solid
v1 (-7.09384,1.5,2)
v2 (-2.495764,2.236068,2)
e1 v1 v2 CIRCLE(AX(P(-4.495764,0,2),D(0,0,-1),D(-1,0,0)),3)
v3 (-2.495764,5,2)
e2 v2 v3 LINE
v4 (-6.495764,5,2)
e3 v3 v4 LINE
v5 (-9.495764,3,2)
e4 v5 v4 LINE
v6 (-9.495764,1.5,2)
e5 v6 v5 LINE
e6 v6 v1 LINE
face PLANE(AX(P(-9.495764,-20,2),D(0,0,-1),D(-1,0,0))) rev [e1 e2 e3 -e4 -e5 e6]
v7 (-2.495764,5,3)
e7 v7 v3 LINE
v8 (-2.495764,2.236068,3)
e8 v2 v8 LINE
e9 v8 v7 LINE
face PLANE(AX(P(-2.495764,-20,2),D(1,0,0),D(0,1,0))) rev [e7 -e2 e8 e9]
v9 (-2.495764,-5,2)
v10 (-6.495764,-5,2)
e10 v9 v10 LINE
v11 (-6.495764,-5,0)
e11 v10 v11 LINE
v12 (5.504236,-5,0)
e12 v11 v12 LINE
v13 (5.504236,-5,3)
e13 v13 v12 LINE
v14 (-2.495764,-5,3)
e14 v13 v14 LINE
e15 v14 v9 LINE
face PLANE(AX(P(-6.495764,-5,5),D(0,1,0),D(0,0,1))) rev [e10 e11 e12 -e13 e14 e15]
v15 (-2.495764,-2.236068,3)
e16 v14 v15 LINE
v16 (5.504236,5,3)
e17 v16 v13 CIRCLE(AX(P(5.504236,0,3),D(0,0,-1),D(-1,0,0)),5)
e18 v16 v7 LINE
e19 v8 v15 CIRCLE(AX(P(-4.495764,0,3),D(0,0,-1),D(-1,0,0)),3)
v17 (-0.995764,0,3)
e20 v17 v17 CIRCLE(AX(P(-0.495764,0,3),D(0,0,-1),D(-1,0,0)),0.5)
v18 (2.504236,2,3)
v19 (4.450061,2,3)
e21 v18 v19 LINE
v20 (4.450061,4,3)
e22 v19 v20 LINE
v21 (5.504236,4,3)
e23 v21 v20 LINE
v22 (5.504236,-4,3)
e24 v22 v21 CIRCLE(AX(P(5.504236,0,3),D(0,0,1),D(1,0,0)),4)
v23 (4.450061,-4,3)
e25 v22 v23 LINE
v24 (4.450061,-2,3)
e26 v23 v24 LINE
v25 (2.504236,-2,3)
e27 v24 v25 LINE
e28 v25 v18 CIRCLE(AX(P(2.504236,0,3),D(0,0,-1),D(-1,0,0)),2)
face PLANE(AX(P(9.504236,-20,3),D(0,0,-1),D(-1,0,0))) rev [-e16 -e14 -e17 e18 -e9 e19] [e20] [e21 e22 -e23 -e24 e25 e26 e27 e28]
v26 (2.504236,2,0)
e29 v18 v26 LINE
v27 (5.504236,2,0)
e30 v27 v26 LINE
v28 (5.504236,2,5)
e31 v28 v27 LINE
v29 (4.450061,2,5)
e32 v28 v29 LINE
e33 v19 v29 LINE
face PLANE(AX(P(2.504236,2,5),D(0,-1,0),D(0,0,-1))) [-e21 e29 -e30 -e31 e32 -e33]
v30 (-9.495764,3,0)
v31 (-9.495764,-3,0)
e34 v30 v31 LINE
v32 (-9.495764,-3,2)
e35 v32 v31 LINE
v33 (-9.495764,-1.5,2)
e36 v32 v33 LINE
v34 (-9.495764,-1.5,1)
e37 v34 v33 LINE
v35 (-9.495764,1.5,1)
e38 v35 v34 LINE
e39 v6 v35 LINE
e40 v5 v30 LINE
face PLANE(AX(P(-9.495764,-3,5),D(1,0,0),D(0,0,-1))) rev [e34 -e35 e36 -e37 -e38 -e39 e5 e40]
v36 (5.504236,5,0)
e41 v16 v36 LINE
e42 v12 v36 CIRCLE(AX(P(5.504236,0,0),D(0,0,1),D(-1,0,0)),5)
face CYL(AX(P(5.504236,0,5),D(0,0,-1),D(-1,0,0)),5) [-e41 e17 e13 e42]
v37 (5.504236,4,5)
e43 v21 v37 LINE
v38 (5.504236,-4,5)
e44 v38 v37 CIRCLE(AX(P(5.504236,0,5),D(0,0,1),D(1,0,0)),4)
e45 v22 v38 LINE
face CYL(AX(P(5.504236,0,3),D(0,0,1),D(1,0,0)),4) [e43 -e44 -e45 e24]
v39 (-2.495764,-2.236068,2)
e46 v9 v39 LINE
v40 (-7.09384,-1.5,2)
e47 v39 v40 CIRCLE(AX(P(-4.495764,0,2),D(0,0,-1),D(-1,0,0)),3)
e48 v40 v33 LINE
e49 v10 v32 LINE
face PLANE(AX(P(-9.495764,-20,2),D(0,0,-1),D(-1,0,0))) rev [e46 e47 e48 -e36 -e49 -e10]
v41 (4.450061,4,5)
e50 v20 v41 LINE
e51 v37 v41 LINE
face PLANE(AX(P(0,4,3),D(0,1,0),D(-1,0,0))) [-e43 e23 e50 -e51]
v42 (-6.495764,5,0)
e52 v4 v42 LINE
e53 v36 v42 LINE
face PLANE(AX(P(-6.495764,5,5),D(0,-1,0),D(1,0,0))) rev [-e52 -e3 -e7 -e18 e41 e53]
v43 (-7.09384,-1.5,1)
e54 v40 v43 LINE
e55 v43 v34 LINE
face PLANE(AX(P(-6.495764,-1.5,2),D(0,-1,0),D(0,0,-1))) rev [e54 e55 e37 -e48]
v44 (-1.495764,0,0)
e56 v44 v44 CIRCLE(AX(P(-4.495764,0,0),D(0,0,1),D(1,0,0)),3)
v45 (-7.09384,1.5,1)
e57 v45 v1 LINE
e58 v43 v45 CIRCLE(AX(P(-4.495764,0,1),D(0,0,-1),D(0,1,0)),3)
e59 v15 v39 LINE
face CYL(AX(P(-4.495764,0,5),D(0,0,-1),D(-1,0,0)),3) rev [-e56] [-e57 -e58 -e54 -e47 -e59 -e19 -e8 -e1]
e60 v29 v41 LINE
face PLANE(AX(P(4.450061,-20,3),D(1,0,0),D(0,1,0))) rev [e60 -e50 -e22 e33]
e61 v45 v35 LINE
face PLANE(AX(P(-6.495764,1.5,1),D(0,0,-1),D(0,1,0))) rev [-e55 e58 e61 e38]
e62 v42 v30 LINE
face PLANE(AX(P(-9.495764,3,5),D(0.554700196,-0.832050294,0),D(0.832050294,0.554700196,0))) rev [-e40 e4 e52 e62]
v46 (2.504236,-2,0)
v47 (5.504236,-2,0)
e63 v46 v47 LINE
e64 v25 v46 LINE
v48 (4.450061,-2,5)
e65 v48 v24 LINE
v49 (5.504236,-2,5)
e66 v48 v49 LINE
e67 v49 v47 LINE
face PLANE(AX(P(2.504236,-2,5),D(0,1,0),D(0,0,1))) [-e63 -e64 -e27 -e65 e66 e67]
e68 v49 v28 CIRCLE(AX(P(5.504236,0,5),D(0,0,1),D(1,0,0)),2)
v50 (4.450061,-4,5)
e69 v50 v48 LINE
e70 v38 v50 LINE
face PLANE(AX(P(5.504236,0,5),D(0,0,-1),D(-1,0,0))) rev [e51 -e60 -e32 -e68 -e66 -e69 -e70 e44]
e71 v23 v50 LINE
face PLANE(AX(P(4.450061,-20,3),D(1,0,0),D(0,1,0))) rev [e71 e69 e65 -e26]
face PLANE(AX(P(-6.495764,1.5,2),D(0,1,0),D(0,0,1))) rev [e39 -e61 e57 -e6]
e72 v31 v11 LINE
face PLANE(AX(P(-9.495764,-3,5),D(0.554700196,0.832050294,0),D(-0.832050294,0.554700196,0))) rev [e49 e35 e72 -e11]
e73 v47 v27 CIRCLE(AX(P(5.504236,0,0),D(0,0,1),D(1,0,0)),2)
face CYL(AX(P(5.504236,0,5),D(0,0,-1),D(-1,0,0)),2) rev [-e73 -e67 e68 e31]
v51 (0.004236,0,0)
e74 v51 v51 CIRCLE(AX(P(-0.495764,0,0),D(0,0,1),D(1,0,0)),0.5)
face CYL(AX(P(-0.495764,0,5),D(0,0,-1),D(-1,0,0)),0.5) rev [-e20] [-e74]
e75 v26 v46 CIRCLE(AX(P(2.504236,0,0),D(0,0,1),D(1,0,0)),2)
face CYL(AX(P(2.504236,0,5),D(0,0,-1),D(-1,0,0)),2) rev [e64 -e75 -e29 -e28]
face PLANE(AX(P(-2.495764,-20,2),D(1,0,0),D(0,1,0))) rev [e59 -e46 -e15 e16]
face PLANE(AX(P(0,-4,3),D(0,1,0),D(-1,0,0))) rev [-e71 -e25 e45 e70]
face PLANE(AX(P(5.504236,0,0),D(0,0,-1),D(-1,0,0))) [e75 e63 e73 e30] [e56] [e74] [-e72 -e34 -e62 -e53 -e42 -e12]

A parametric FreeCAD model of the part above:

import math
import FreeCAD as App
import Part
import Sketcher
from FreeCAD import Vector

doc = App.newDocument("Part")
params = doc.addObject("Spreadsheet::Sheet", "Params")
for row, (alias, value) in enumerate([
    ("sketch1_diameter", "1 mm"),
    ("sketch1_diameter2", "6 mm"),
    ("sketch1_radius", "5 mm"),
    ("sketch1_radius2", "2 mm"),
    ("sketch1_width", "12 mm"),
    ("pad1_length", "5 mm"),
    ("sketch2_width", "7 mm"),
    ("sketch2_width2", "20 mm"),
    ("sketch2_width3", "1 mm"),
    ("sketch2_height", "2 mm"),
    ("pocket1_length", "25 mm"),
    ("sketch3_radius", "4 mm"),
    ("sketch3_radius2", "5 mm"),
    ("sketch3_radius3", "2 mm"),
    ("pocket2_length", "2 mm"),
    ("sketch4_width", "3 mm"),
    ("sketch4_height", "1 mm"),
    ("pocket3_length", "3 mm"),
], start=1):
    params.set(f"A{row}", alias)
    params.set(f"B{row}", "=" + value)
    params.setAlias(f"B{row}", alias)

body = doc.addObject("PartDesign::Body", "Body")

# Sketch on XY plane
sketch1 = body.newObject("Sketcher::SketchObject", "Sketch")
sketch1.AttachmentSupport = (doc.getObject("XY_Plane"), [""])
sketch1.MapMode = "FlatFace"
sketch1.addGeometry([
    Part.LineSegment(Vector(-6.5, 5, 0), Vector(-9.5, 3, 0)),  # 0
    Part.LineSegment(Vector(-9.5, 3, 0), Vector(-9.5, -3, 0)),  # 1
    Part.LineSegment(Vector(-9.5, -3, 0), Vector(-6.5, -5, 0)),  # 2
    Part.LineSegment(Vector(-6.5, -5, 0), Vector(5.5, -5, 0)),  # 3
    Part.ArcOfCircle(Part.Circle(Vector(5.5, 0, 0), Vector(0, 0, 1), 5), math.radians(-90), math.radians(0)),  # 4
    Part.ArcOfCircle(Part.Circle(Vector(5.5, 0, 0), Vector(0, 0, 1), 5), math.radians(0), math.radians(90)),  # 5
    Part.LineSegment(Vector(5.5, 5, 0), Vector(-6.5, 5, 0)),  # 6
    Part.LineSegment(Vector(2.5, 2, 0), Vector(5.5, 2, 0)),  # 7
    Part.ArcOfCircle(Part.Circle(Vector(5.5, 0, 0), Vector(0, 0, 1), 2), math.radians(-90), math.radians(90)),  # 8
    Part.LineSegment(Vector(5.5, -2, 0), Vector(2.5, -2, 0)),  # 9
    Part.ArcOfCircle(Part.Circle(Vector(2.5, 0, 0), Vector(0, 0, 1), 2), math.radians(90), math.radians(270)),  # 10
    Part.Circle(Vector(-0.5, 0, 0), Vector(0, 0, 1), 0.5),  # 11
    Part.Circle(Vector(-4.5, 0, 0), Vector(0, 0, 1), 3),  # 12
], False)
sketch1.addConstraint([
    Sketcher.Constraint("Coincident", 0, 2, 1, 1),
    Sketcher.Constraint("Coincident", 1, 2, 2, 1),
    Sketcher.Constraint("Coincident", 2, 2, 3, 1),
    Sketcher.Constraint("Tangent", 3, 2, 4, 1),
    Sketcher.Constraint("Tangent", 4, 2, 5, 1),
    Sketcher.Constraint("Tangent", 5, 2, 6, 1),
    Sketcher.Constraint("Coincident", 6, 2, 0, 1),
    Sketcher.Constraint("Tangent", 7, 2, 8, 2),
    Sketcher.Constraint("Tangent", 8, 1, 9, 1),
    Sketcher.Constraint("Tangent", 9, 2, 10, 2),
    Sketcher.Constraint("Tangent", 10, 1, 7, 1),
    Sketcher.Constraint("Vertical", 1),
    Sketcher.Constraint("Horizontal", 3),
    Sketcher.Constraint("Horizontal", 6),
    Sketcher.Constraint("Horizontal", 7),
    Sketcher.Constraint("Horizontal", 9),
    Sketcher.Constraint("Coincident", 8, 3, 4, 3),
    Sketcher.Constraint("Equal", 4, 5),
    Sketcher.Constraint("Symmetric", 2, 2, 6, 2, -1),
    Sketcher.Constraint("PointOnObject", 11, 3, -1),
    Sketcher.Constraint("PointOnObject", 12, 3, -1),
    Sketcher.Constraint("Equal", 0, 2),
    Sketcher.Constraint("Diameter", 11, 1.0),
    Sketcher.Constraint("Diameter", 12, 6.0),
    Sketcher.Constraint("Radius", 4, 5.0),
    Sketcher.Constraint("Radius", 8, 2.0),
    Sketcher.Constraint("DistanceX", 3, 1, 3, 2, 12.0),
    Sketcher.Constraint("DistanceX", 7, 1, 7, 2, 3.0),
    Sketcher.Constraint("DistanceY", 1, 2, 1, 1, 6.0),
    Sketcher.Constraint("DistanceX", 11, 3, 10, 3, 3.0),
    Sketcher.Constraint("DistanceX", 12, 3, 11, 3, 4.0),
    Sketcher.Constraint("DistanceX", 0, 2, 12, 3, 5.0),
    Sketcher.Constraint("DistanceY", 4, 2, -1, 1, 0.02004),
    Sketcher.Constraint("DistanceX", -1, 1, 4, 3, 5.504236),
])
sketch1.setExpression("Constraints[22]", "Params.sketch1_diameter")
sketch1.setExpression("Constraints[23]", "Params.sketch1_diameter2")
sketch1.setExpression("Constraints[24]", "Params.sketch1_radius")
sketch1.setExpression("Constraints[25]", "Params.sketch1_radius2")
sketch1.setExpression("Constraints[26]", "Params.sketch1_width")
pad1 = body.newObject("PartDesign::Pad", "Pad")
pad1.Profile = sketch1
pad1.setExpression("Length", "Params.pad1_length")

# Sketch on XZ plane
sketch2 = body.newObject("Sketcher::SketchObject", "Sketch001")
sketch2.AttachmentSupport = (doc.getObject("XZ_Plane"), [""])
sketch2.MapMode = "FlatFace"
sketch2.AttachmentOffset = App.Placement(Vector(0, 0, -5), App.Rotation())
sketch2.addGeometry([
    Part.LineSegment(Vector(-2.5, 2, 0), Vector(-9.5, 2, 0)),  # 0
    Part.LineSegment(Vector(-9.5, 2, 0), Vector(-9.5, 6.6, 0)),  # 1
    Part.LineSegment(Vector(-9.5, 6.6, 0), Vector(10.5, 6.6, 0)),  # 2
    Part.LineSegment(Vector(10.5, 6.6, 0), Vector(10.5, 3, 0)),  # 3
    Part.LineSegment(Vector(10.5, 3, 0), Vector(9.5, 3, 0)),  # 4
    Part.LineSegment(Vector(9.5, 3, 0), Vector(9.5, 5, 0)),  # 5
    Part.LineSegment(Vector(9.5, 5, 0), Vector(4.5, 5, 0)),  # 6
    Part.LineSegment(Vector(4.5, 5, 0), Vector(4.5, 3, 0)),  # 7
    Part.LineSegment(Vector(4.5, 3, 0), Vector(-2.5, 3, 0)),  # 8
    Part.LineSegment(Vector(-2.5, 3, 0), Vector(-2.5, 2, 0)),  # 9
], False)
sketch2.addConstraint([
    Sketcher.Constraint("Coincident", 0, 2, 1, 1),
    Sketcher.Constraint("Coincident", 1, 2, 2, 1),
    Sketcher.Constraint("Coincident", 2, 2, 3, 1),
    Sketcher.Constraint("Coincident", 3, 2, 4, 1),
    Sketcher.Constraint("Coincident", 4, 2, 5, 1),
    Sketcher.Constraint("Coincident", 5, 2, 6, 1),
    Sketcher.Constraint("Coincident", 6, 2, 7, 1),
    Sketcher.Constraint("Coincident", 7, 2, 8, 1),
    Sketcher.Constraint("Coincident", 8, 2, 9, 1),
    Sketcher.Constraint("Coincident", 9, 2, 0, 1),
    Sketcher.Constraint("Horizontal", 0),
    Sketcher.Constraint("Vertical", 1),
    Sketcher.Constraint("Horizontal", 2),
    Sketcher.Constraint("Vertical", 3),
    Sketcher.Constraint("Horizontal", 4),
    Sketcher.Constraint("Vertical", 5),
    Sketcher.Constraint("Horizontal", 6),
    Sketcher.Constraint("Vertical", 7),
    Sketcher.Constraint("Horizontal", 8),
    Sketcher.Constraint("Vertical", 9),
    Sketcher.Constraint("Horizontal", 4, 2, 7, 2),
    Sketcher.Constraint("Equal", 4, 9),
    Sketcher.Constraint("DistanceX", 0, 2, 0, 1, 7.0),
    Sketcher.Constraint("DistanceX", 2, 1, 2, 2, 20.0),
    Sketcher.Constraint("DistanceX", 4, 2, 4, 1, 1.0),
    Sketcher.Constraint("DistanceY", 5, 1, 5, 2, 2.0),
    Sketcher.Constraint("DistanceY", -1, 1, 0, 2, 2.0),
    Sketcher.Constraint("DistanceX", 6, 2, 6, 1, 5.054175),
    Sketcher.Constraint("DistanceY", 1, 1, 1, 2, 4.643117),
    Sketcher.Constraint("DistanceX", -1, 1, 6, 2, 4.450061),
])
sketch2.setExpression("Constraints[22]", "Params.sketch2_width")
sketch2.setExpression("Constraints[23]", "Params.sketch2_width2")
sketch2.setExpression("Constraints[24]", "Params.sketch2_width3")
sketch2.setExpression("Constraints[25]", "Params.sketch2_height")
pocket1 = body.newObject("PartDesign::Pocket", "Pocket")
pocket1.Profile = sketch2
pocket1.setExpression("Length", "Params.pocket1_length")
pocket1.Reversed = True

# Sketch on XY plane
sketch3 = body.newObject("Sketcher::SketchObject", "Sketch002")
sketch3.AttachmentSupport = (doc.getObject("XY_Plane"), [""])
sketch3.MapMode = "FlatFace"
sketch3.AttachmentOffset = App.Placement(Vector(0, 0, 5), App.Rotation())
sketch3.addGeometry([
    Part.LineSegment(Vector(4.5, 5, 0), Vector(4.5, 4, 0)),  # 0
    Part.LineSegment(Vector(4.5, 4, 0), Vector(5.5, 4, 0)),  # 1
    Part.ArcOfCircle(Part.Circle(Vector(5.5, 0, 0), Vector(0, 0, 1), 4), math.radians(0), math.radians(90)),  # 2
    Part.LineSegment(Vector(9.5, 0, 0), Vector(9.5, 3, 0)),  # 3
    Part.ArcOfCircle(Part.Circle(Vector(5.5, 0, 0), Vector(0, 0, 1), 5), math.radians(37), math.radians(90)),  # 4
    Part.LineSegment(Vector(5.5, 5, 0), Vector(4.5, 5, 0)),  # 5
    Part.LineSegment(Vector(5.5, -4, 0), Vector(4.5, -4, 0)),  # 6
    Part.LineSegment(Vector(4.5, -4, 0), Vector(4.5, -5, 0)),  # 7
    Part.LineSegment(Vector(4.5, -5, 0), Vector(5.5, -5, 0)),  # 8
    Part.ArcOfCircle(Part.Circle(Vector(5.5, 0, 0), Vector(0, 0, 1), 5), math.radians(-90), math.radians(-37)),  # 9
    Part.LineSegment(Vector(9.5, -3, 0), Vector(9.5, 0, 0)),  # 10
    Part.ArcOfCircle(Part.Circle(Vector(5.5, 0, 0), Vector(0, 0, 1), 4), math.radians(-90), math.radians(0)),  # 11
    Part.LineSegment(Vector(4.5, -4, 0), Vector(4.5, -2, 0)),  # 12
    Part.LineSegment(Vector(4.5, -2, 0), Vector(2.5, -2, 0)),  # 13
    Part.ArcOfCircle(Part.Circle(Vector(2.5, 0, 0), Vector(0, 0, 1), 2), math.radians(90), math.radians(270)),  # 14
    Part.LineSegment(Vector(2.5, 2, 0), Vector(4.5, 2, 0)),  # 15
    Part.LineSegment(Vector(4.5, 2, 0), Vector(4.5, 4, 0)),  # 16
    Part.LineSegment(Vector(4.5, 4, 0), Vector(2.5, 4, 0)),  # 17
    Part.ArcOfCircle(Part.Circle(Vector(2.5, 0, 0), Vector(0, 0, 1), 4), math.radians(90), math.radians(270)),  # 18
    Part.LineSegment(Vector(2.5, -4, 0), Vector(4.5, -4, 0)),  # 19
], False)
sketch3.addConstraint([
    Sketcher.Constraint("Coincident", 0, 2, 1, 1),
    Sketcher.Constraint("Tangent", 1, 2, 2, 2),
    Sketcher.Constraint("Tangent", 2, 1, 3, 1),
    Sketcher.Constraint("Coincident", 3, 2, 4, 1),
    Sketcher.Constraint("Tangent", 4, 2, 5, 1),
    Sketcher.Constraint("Coincident", 5, 2, 0, 1),
    Sketcher.Constraint("Coincident", 6, 2, 7, 1),
    Sketcher.Constraint("Coincident", 7, 2, 8, 1),
    Sketcher.Constraint("Tangent", 8, 2, 9, 1),
    Sketcher.Constraint("Coincident", 9, 2, 10, 1),
    Sketcher.Constraint("Tangent", 10, 2, 11, 2),
    Sketcher.Constraint("Tangent", 11, 1, 6, 1),
    Sketcher.Constraint("Coincident", 12, 2, 13, 1),
    Sketcher.Constraint("Tangent", 13, 2, 14, 2),
    Sketcher.Constraint("Tangent", 14, 1, 15, 1),
    Sketcher.Constraint("Coincident", 15, 2, 16, 1),
    Sketcher.Constraint("Coincident", 16, 2, 17, 1),
    Sketcher.Constraint("Tangent", 17, 2, 18, 1),
    Sketcher.Constraint("Tangent", 18, 2, 19, 1),
    Sketcher.Constraint("Coincident", 19, 2, 12, 1),
    Sketcher.Constraint("Vertical", 0),
    Sketcher.Constraint("Horizontal", 1),
    Sketcher.Constraint("Vertical", 3),
    Sketcher.Constraint("Horizontal", 5),
    Sketcher.Constraint("Horizontal", 6),
    Sketcher.Constraint("Vertical", 7),
    Sketcher.Constraint("Horizontal", 8),
    Sketcher.Constraint("Vertical", 10),
    Sketcher.Constraint("Vertical", 12),
    Sketcher.Constraint("Horizontal", 13),
    Sketcher.Constraint("Horizontal", 15),
    Sketcher.Constraint("Vertical", 16),
    Sketcher.Constraint("Horizontal", 17),
    Sketcher.Constraint("Horizontal", 19),
    Sketcher.Constraint("Coincident", 4, 3, 2, 3),
    Sketcher.Constraint("Coincident", 9, 3, 2, 3),
    Sketcher.Constraint("Coincident", 11, 3, 2, 3),
    Sketcher.Constraint("Coincident", 18, 3, 14, 3),
    Sketcher.Constraint("Coincident", 16, 2, 0, 2),
    Sketcher.Constraint("Coincident", 19, 2, 6, 2),
    Sketcher.Constraint("Equal", 4, 9),
    Sketcher.Constraint("Equal", 2, 11),
    Sketcher.Constraint("Symmetric", 0, 2, 6, 2, -1),
    Sketcher.Constraint("Radius", 2, 4.0),
    Sketcher.Constraint("Radius", 4, 5.0),
    Sketcher.Constraint("Radius", 14, 2.0),
    Sketcher.Constraint("DistanceX", 14, 3, 2, 3, 3.0),
    Sketcher.Constraint("DistanceX", 1, 1, 1, 2, 1.054175),
    Sketcher.Constraint("DistanceX", -1, 1, 0, 2, 4.450061),
])
sketch3.setExpression("Constraints[43]", "Params.sketch3_radius")
sketch3.setExpression("Constraints[44]", "Params.sketch3_radius2")
sketch3.setExpression("Constraints[45]", "Params.sketch3_radius3")
pocket2 = body.newObject("PartDesign::Pocket", "Pocket001")
pocket2.Profile = sketch3
pocket2.setExpression("Length", "Params.pocket2_length")

# Sketch on YZ plane
sketch4 = body.newObject("Sketcher::SketchObject", "Sketch003")
sketch4.AttachmentSupport = (doc.getObject("YZ_Plane"), [""])
sketch4.MapMode = "FlatFace"
sketch4.AttachmentOffset = App.Placement(Vector(0, 0, -9.495764), App.Rotation())
sketch4.addGeometry([
    Part.LineSegment(Vector(1.5, 1, 0), Vector(-1.5, 1, 0)),
    Part.LineSegment(Vector(-1.5, 1, 0), Vector(-1.5, 2, 0)),
    Part.LineSegment(Vector(-1.5, 2, 0), Vector(1.5, 2, 0)),
    Part.LineSegment(Vector(1.5, 2, 0), Vector(1.5, 1, 0)),
], False)
sketch4.addConstraint([
    Sketcher.Constraint("Coincident", 0, 2, 1, 1),
    Sketcher.Constraint("Coincident", 1, 2, 2, 1),
    Sketcher.Constraint("Coincident", 2, 2, 3, 1),
    Sketcher.Constraint("Coincident", 3, 2, 0, 1),
    Sketcher.Constraint("Horizontal", 0),
    Sketcher.Constraint("Vertical", 1),
    Sketcher.Constraint("Horizontal", 2),
    Sketcher.Constraint("Vertical", 3),
    Sketcher.Constraint("DistanceX", 0, 2, 0, 1, 3.0),
    Sketcher.Constraint("DistanceY", 1, 1, 1, 2, 1.0),
    Sketcher.Constraint("DistanceY", -1, 1, 0, 2, 1.0),
    Sketcher.Constraint("DistanceX", 0, 2, -1, 1, 1.5),
])
sketch4.setExpression("Constraints[8]", "Params.sketch4_width")
sketch4.setExpression("Constraints[9]", "Params.sketch4_height")
pocket3 = body.newObject("PartDesign::Pocket", "Pocket002")
pocket3.Profile = sketch4
pocket3.setExpression("Length", "Params.pocket3_length")
pocket3.Reversed = True

doc.recompute()
